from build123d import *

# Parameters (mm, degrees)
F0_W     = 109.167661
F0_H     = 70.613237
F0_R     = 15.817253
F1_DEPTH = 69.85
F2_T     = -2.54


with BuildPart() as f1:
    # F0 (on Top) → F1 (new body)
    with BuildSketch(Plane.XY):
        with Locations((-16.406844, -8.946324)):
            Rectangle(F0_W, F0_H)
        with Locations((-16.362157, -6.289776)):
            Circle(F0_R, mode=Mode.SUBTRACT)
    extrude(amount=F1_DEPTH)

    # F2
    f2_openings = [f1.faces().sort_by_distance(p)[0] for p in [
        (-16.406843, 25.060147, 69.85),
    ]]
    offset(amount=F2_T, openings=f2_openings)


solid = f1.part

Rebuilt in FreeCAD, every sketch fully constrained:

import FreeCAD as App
import Part
import Sketcher


def faces_at(feature, points):
    """Names of the faces that lie closest to the given points."""
    faces = feature.Shape.Faces
    near = lambda p: min(range(len(faces)), key=lambda i: faces[i].distToShape(Part.Vertex(*p))[0])
    return sorted({f"Face{near(p) + 1}" for p in points})

doc = App.newDocument("Part")
params = doc.addObject("Spreadsheet::Sheet", "Params")
for row, (alias, value) in enumerate([
    ("pad1_length", "2.75 in"),
    ("thickness_wall", "0.1 in"),
], start=1):
    params.set(f"A{row}", alias)
    params.set(f"B{row}", "=" + value)
    params.setAlias(f"B{row}", alias)

body = doc.addObject("PartDesign::Body", "Body")

sketch1 = body.newObject("Sketcher::SketchObject", "Sketch")
sketch1.AttachmentSupport = (doc.getObject("XY_Plane"), [""])
sketch1.MapMode = "FlatFace"
sketch1.addGeometry([
    Part.LineSegment(App.Vector(-71, 26, 0), App.Vector(-71, -44, 0)),
    Part.LineSegment(App.Vector(-71, -44, 0), App.Vector(38, -44, 0)),
    Part.LineSegment(App.Vector(38, -44, 0), App.Vector(38, 26, 0)),
    Part.LineSegment(App.Vector(38, 26, 0), App.Vector(-71, 26, 0)),
    Part.Circle(App.Vector(-16, -6, 0), App.Vector(0, 0, 1), 16),
], False)
sketch1.addConstraint([
    Sketcher.Constraint("Coincident", 0, 2, 1, 1),
    Sketcher.Constraint("Coincident", 1, 2, 2, 1),
    Sketcher.Constraint("Coincident", 2, 2, 3, 1),
    Sketcher.Constraint("Coincident", 3, 2, 0, 1),
    Sketcher.Constraint("Vertical", 0),
    Sketcher.Constraint("Horizontal", 1),
    Sketcher.Constraint("Vertical", 2),
    Sketcher.Constraint("Horizontal", 3),
    Sketcher.Constraint("Diameter", 4, 31.634506),
    Sketcher.Constraint("DistanceX", 1, 1, 1, 2, 109.167661),
    Sketcher.Constraint("DistanceY", 0, 2, 0, 1, 70.613237),
    Sketcher.Constraint("DistanceY", 4, 3, 2, 2, 32.65007),
    Sketcher.Constraint("DistanceX", 4, 3, -1, 1, 16.362157),
    Sketcher.Constraint("DistanceY", 4, 3, -1, 1, 6.289776),
    Sketcher.Constraint("DistanceX", 0, 2, -1, 1, 70.990674),
])
pad1 = body.newObject("PartDesign::Pad", "Pad")
pad1.Profile = sketch1
pad1.setExpression("Length", "Params.pad1_length")
doc.recompute()

thickness = body.newObject("PartDesign::Thickness", "Thickness")
thickness.Base = (pad1, faces_at(pad1, [(-38.24, -23.069, 69.85)]))
thickness.setExpression("Value", "Params.thickness_wall")
thickness.Reversed = True
thickness.Join = "Arc"

doc.recompute()
